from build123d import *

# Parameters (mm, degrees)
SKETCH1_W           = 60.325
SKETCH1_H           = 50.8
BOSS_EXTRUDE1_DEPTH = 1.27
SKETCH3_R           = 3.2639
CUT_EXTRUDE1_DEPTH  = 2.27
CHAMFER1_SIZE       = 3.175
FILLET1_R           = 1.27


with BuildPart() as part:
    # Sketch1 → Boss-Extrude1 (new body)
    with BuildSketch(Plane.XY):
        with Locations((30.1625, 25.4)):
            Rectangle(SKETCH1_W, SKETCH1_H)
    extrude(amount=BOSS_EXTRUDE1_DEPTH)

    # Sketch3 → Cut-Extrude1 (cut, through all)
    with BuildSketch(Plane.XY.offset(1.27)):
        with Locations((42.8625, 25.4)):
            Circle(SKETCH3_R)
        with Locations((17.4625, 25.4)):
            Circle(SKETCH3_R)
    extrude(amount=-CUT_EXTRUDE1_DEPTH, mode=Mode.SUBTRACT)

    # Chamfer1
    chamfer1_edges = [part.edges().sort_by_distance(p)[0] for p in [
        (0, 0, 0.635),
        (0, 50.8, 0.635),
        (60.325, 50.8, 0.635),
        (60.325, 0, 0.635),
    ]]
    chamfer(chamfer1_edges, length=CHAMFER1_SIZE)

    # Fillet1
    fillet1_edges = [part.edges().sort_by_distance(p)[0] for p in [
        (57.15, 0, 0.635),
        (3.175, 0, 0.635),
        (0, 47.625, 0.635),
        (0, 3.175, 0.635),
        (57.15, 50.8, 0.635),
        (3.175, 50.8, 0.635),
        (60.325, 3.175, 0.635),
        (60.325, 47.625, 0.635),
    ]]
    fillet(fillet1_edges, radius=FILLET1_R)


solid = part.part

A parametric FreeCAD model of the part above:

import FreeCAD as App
import Part
import Sketcher

V = App.Vector
Q = App.Units.Quantity


def edges_at(feature, points):
    """Names of the edges that pass closest to the given points."""
    edges = feature.Shape.Edges
    near = lambda p: min(range(len(edges)), key=lambda i: edges[i].distToShape(Part.Vertex(*p))[0])
    return sorted({f"Edge{near(p) + 1}" for p in points})

doc = App.newDocument("Part")
body = doc.addObject("PartDesign::Body", "Body")

sketch1 = body.newObject("Sketcher::SketchObject", "Sketch")
sketch1.AttachmentSupport = (doc.getObject("XY_Plane"), [""])
sketch1.MapMode = "FlatFace"
sketch1.addGeometry(Part.LineSegment(V(0, 50.8, 0), V(0, 0, 0)), False)
sketch1.addGeometry(Part.LineSegment(V(0, 0, 0), V(60.325, 0, 0)), False)
sketch1.addGeometry(Part.LineSegment(V(60.325, 0, 0), V(60.325, 50.8, 0)), False)
sketch1.addGeometry(Part.LineSegment(V(60.325, 50.8, 0), V(0, 50.8, 0)), False)
sketch1.addConstraint(Sketcher.Constraint("Coincident", 0, 2, 1, 1))
sketch1.addConstraint(Sketcher.Constraint("Coincident", 1, 2, 2, 1))
sketch1.addConstraint(Sketcher.Constraint("Coincident", 2, 2, 3, 1))
sketch1.addConstraint(Sketcher.Constraint("Coincident", 3, 2, 0, 1))
sketch1.addConstraint(Sketcher.Constraint("Vertical", 0))
sketch1.addConstraint(Sketcher.Constraint("Horizontal", 1))
sketch1.addConstraint(Sketcher.Constraint("Vertical", 2))
sketch1.addConstraint(Sketcher.Constraint("Horizontal", 3))
sketch1.addConstraint(Sketcher.Constraint("Coincident", 0, 2, -1, 1))
sketch1.addConstraint(Sketcher.Constraint("DistanceY", 0, 2, 0, 1, Q("2 in")))
sketch1.addConstraint(Sketcher.Constraint("DistanceX", 1, 1, 1, 2, Q("2.375 in")))
pad1 = body.newObject("PartDesign::Pad", "Pad")
pad1.Profile = sketch1
pad1.Length = Q("0.05 in")

sketch2 = body.newObject("Sketcher::SketchObject", "Sketch001")
sketch2.AttachmentSupport = (doc.getObject("XY_Plane"), [""])
sketch2.MapMode = "FlatFace"
sketch2.AttachmentOffset = App.Placement(V(0, 0, 0.05 * 25.4), App.Rotation())
sketch2.addGeometry(Part.Circle(V(42.8625, 25.4, 0), V(0, 0, 1), 3.2639), False)
sketch2.addGeometry(Part.Circle(V(17.4625, 25.4, 0), V(0, 0, 1), 3.2639), False)
sketch2.addConstraint(Sketcher.Constraint("Equal", 0, 1))
sketch2.addConstraint(Sketcher.Constraint("Horizontal", 0, 3, 1, 3))
sketch2.addConstraint(Sketcher.Constraint("Diameter", 0, Q("0.257 in")))
sketch2.addConstraint(Sketcher.Constraint("DistanceY", -1, 1, 0, 3, Q("1 in")))
sketch2.addConstraint(Sketcher.Constraint("DistanceX", 1, 3, 0, 3, Q("1 in")))
sketch2.addConstraint(Sketcher.Constraint("DistanceX", -1, 1, 0, 3, Q("1.6875 in")))
pocket1 = body.newObject("PartDesign::Pocket", "Pocket")
pocket1.Profile = sketch2
pocket1.Type = "ThroughAll"
doc.recompute()

chamfer = body.newObject("PartDesign::Chamfer", "Chamfer")
chamfer.Base = (pocket1, edges_at(pocket1, [
    (0, 0, 0.635),
    (0, 50.8, 0.635),
    (60.325, 50.8, 0.635),
    (60.325, 0, 0.635),
]))
chamfer.Size = Q("0.125 in")
doc.recompute()

fillet = body.newObject("PartDesign::Fillet", "Fillet")
fillet.Base = (chamfer, edges_at(chamfer, [
    (57.15, 0, 0.635),
    (3.175, 0, 0.635),
    (0, 47.625, 0.635),
    (0, 3.175, 0.635),
    (57.15, 50.8, 0.635),
    (3.175, 50.8, 0.635),
    (60.325, 3.175, 0.635),
    (60.325, 47.625, 0.635),
]))
fillet.Radius = Q("0.05 in")

doc.recompute()
